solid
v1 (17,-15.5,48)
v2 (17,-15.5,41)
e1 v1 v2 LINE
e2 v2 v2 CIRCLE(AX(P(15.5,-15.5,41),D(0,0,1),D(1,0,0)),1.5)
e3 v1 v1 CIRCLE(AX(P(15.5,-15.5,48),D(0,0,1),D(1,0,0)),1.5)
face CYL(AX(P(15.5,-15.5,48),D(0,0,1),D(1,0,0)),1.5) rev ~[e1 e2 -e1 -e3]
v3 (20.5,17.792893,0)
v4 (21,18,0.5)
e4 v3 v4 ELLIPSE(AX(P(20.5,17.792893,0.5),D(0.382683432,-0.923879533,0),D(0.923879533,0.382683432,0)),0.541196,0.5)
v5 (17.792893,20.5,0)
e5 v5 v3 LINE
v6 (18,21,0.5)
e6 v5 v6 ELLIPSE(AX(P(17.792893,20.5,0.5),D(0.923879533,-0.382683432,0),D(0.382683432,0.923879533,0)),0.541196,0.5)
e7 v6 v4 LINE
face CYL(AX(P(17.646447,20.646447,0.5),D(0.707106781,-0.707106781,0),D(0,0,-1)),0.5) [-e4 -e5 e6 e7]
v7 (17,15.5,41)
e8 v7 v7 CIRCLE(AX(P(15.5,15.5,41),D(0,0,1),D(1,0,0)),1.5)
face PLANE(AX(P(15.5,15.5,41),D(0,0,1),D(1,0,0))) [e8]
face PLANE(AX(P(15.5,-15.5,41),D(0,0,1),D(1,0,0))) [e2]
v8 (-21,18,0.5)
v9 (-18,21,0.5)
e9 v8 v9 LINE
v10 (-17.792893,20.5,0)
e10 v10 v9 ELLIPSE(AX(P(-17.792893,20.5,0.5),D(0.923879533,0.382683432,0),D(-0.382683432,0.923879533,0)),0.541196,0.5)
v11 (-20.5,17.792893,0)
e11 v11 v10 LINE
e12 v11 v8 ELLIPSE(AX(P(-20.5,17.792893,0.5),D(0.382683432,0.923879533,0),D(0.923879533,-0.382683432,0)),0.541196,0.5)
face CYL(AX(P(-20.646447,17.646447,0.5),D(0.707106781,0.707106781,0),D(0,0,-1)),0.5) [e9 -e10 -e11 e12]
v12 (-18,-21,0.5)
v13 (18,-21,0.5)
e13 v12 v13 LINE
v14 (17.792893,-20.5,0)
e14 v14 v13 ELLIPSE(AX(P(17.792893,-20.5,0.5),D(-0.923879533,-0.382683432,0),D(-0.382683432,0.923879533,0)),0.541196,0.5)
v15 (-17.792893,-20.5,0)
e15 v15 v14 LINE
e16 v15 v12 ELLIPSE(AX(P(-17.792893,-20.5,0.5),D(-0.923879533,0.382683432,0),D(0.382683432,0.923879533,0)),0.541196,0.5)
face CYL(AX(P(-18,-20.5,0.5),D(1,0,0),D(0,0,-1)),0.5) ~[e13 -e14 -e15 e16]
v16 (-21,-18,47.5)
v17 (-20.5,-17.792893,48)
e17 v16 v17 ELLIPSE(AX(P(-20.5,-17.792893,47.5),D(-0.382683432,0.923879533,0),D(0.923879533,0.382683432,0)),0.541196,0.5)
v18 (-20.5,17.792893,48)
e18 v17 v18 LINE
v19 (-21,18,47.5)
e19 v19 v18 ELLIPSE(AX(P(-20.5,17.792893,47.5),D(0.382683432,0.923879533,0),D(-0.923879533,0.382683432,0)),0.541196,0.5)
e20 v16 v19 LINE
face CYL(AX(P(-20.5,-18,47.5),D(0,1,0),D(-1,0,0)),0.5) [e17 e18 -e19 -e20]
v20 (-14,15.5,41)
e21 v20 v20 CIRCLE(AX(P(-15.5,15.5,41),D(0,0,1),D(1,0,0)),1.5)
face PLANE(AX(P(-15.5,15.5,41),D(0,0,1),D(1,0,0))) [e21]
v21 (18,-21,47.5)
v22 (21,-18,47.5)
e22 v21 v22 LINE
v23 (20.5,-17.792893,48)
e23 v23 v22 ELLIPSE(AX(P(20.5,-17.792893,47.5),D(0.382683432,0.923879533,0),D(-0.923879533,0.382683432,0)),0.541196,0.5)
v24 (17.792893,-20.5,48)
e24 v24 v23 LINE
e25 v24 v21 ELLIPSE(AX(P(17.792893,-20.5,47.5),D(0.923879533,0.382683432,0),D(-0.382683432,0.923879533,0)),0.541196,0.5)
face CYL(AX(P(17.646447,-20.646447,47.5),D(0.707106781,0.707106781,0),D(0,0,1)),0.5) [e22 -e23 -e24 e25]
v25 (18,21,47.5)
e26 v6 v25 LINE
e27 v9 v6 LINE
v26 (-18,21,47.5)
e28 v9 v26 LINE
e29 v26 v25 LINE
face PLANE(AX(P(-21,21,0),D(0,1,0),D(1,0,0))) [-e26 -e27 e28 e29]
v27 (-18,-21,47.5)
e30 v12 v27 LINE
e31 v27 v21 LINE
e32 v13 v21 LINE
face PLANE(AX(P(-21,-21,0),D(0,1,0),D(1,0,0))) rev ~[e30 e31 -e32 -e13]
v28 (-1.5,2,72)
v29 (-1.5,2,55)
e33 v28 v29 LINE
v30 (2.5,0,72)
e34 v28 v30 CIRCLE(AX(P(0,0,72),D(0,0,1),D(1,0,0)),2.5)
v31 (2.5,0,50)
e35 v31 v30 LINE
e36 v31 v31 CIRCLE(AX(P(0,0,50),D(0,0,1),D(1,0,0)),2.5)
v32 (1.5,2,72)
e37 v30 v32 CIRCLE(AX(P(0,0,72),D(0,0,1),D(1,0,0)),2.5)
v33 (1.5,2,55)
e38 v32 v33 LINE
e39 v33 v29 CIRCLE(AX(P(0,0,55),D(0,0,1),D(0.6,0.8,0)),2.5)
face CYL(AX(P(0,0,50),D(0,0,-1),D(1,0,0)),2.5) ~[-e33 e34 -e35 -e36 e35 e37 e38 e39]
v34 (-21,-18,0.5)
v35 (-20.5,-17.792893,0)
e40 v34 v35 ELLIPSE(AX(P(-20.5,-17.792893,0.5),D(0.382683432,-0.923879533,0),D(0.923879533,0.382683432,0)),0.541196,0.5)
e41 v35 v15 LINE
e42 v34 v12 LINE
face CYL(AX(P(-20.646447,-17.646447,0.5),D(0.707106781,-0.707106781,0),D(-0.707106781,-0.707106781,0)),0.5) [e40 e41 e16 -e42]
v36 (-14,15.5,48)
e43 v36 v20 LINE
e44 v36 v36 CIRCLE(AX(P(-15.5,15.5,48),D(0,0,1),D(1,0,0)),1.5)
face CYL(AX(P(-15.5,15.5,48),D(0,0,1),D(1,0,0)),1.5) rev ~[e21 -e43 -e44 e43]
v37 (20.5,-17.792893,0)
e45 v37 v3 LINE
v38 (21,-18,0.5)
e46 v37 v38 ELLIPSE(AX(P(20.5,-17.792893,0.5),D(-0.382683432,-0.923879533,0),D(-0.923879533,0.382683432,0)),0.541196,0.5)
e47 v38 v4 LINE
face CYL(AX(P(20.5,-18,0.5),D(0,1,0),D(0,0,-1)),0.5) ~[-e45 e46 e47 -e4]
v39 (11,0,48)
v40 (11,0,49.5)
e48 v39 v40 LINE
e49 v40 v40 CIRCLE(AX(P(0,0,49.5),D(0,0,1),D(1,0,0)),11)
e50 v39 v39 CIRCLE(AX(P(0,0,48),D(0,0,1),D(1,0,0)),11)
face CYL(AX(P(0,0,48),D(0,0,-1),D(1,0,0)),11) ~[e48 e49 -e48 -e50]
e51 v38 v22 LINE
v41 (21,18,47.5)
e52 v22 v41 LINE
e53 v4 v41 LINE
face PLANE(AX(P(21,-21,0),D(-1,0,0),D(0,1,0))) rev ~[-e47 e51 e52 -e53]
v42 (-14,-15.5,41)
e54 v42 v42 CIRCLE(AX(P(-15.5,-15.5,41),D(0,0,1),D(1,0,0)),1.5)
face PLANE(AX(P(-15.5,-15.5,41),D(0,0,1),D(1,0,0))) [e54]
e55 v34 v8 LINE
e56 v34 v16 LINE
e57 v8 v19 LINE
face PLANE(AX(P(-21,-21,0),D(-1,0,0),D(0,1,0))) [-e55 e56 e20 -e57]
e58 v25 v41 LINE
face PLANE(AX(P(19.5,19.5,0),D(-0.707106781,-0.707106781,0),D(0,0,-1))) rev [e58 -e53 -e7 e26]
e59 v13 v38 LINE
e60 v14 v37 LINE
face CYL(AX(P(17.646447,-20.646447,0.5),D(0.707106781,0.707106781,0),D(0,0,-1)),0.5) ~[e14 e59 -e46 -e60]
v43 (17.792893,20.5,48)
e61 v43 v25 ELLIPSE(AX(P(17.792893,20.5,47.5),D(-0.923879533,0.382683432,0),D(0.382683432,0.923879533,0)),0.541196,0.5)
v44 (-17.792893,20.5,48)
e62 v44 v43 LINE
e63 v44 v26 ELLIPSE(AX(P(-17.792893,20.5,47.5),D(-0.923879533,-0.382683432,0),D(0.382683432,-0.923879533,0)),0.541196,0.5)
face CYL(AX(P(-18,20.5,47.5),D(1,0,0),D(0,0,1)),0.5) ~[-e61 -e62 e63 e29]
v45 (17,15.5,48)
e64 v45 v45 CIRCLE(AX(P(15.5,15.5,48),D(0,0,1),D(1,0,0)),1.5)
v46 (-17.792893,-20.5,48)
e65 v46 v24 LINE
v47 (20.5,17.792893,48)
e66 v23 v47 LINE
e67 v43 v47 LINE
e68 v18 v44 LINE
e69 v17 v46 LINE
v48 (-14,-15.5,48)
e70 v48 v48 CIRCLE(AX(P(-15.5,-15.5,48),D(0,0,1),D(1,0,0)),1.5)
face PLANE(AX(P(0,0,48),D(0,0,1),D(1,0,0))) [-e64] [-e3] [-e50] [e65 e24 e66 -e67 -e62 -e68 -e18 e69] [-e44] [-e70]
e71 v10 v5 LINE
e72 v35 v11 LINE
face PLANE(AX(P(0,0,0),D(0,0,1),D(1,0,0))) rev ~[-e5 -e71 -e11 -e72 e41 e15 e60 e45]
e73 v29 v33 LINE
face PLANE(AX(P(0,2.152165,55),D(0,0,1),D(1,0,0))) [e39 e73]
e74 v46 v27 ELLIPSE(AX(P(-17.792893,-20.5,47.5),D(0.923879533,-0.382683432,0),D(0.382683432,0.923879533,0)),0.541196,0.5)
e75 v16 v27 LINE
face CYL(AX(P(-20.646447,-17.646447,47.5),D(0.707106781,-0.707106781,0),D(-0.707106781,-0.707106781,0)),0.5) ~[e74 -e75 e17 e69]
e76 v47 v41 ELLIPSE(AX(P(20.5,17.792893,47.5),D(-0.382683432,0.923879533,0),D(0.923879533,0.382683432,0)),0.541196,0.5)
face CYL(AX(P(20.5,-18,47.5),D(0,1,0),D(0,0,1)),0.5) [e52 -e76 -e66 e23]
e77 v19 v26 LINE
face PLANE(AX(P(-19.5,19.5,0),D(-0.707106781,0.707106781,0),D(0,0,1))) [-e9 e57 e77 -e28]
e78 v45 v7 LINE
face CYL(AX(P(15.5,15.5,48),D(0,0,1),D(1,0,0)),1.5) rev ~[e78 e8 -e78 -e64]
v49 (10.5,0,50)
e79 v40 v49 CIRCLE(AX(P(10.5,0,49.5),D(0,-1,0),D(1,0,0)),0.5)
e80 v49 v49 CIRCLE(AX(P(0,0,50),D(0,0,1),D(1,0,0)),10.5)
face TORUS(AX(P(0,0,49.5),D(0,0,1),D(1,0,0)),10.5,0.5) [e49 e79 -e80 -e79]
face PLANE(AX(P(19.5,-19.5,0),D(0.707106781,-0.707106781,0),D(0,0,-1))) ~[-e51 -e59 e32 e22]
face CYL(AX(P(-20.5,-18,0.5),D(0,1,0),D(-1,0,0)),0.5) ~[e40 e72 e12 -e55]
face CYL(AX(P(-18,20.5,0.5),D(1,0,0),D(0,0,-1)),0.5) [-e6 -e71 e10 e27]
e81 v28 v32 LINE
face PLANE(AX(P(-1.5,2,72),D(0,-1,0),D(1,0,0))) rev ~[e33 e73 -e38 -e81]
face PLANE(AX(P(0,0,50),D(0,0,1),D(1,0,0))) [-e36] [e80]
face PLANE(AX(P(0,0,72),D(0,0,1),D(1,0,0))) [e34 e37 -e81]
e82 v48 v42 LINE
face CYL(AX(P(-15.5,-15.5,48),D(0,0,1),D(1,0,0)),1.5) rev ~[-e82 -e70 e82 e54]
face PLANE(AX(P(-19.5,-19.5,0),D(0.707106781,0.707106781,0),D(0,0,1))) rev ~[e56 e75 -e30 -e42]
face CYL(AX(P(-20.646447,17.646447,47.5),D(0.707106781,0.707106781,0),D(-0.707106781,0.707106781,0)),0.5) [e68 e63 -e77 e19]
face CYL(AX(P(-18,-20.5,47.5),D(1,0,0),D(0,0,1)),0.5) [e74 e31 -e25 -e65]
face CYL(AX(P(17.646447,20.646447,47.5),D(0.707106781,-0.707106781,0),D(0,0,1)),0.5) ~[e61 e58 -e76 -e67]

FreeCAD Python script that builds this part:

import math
import FreeCAD as App
import Part
import Sketcher


def edges_at(feature, points):
    """Names of the edges that pass closest to the given points."""
    edges = feature.Shape.Edges
    near = lambda p: min(range(len(edges)), key=lambda i: edges[i].distToShape(Part.Vertex(*p))[0])
    return sorted({f"Edge{near(p) + 1}" for p in points})

doc = App.newDocument("Part")
body = doc.addObject("PartDesign::Body", "Body")

sketch1 = body.newObject("Sketcher::SketchObject", "Sketch")
sketch1.AttachmentSupport = (doc.getObject("XY_Plane"), [""])
sketch1.MapMode = "FlatFace"
sketch1.addGeometry([
    Part.LineSegment(App.Vector(-21, 21, 0), App.Vector(-21, -21, 0)),
    Part.LineSegment(App.Vector(-21, -21, 0), App.Vector(21, -21, 0)),
    Part.LineSegment(App.Vector(21, -21, 0), App.Vector(21, 21, 0)),
    Part.LineSegment(App.Vector(21, 21, 0), App.Vector(-21, 21, 0)),
], False)
sketch1.addConstraint([
    Sketcher.Constraint("Coincident", 0, 2, 1, 1),
    Sketcher.Constraint("Coincident", 1, 2, 2, 1),
    Sketcher.Constraint("Coincident", 2, 2, 3, 1),
    Sketcher.Constraint("Coincident", 3, 2, 0, 1),
    Sketcher.Constraint("Vertical", 0),
    Sketcher.Constraint("Horizontal", 1),
    Sketcher.Constraint("Vertical", 2),
    Sketcher.Constraint("Horizontal", 3),
    Sketcher.Constraint("Symmetric", 0, 2, 2, 2, -1, 1),
    Sketcher.Constraint("Equal", 3, 0),
    Sketcher.Constraint("DistanceX", 1, 1, 1, 2, 42.0),
])
pad1 = body.newObject("PartDesign::Pad", "Pad")
pad1.Profile = sketch1
pad1.Length = 48

sketch2 = body.newObject("Sketcher::SketchObject", "Sketch001")
sketch2.AttachmentSupport = (doc.getObject("XY_Plane"), [""])
sketch2.MapMode = "FlatFace"
sketch2.AttachmentOffset = App.Placement(App.Vector(0, 0, 48), App.Rotation())
sketch2.addGeometry([
    Part.Circle(App.Vector(-15.5, -15.5, 0), App.Vector(0, 0, 1), 1.5),
    Part.Circle(App.Vector(-15.5, 15.5, 0), App.Vector(0, 0, 1), 1.5),
    Part.Circle(App.Vector(15.5, 15.5, 0), App.Vector(0, 0, 1), 1.5),
    Part.Circle(App.Vector(15.5, -15.5, 0), App.Vector(0, 0, 1), 1.5),
], False)
sketch2.addConstraint([
    Sketcher.Constraint("Equal", 0, 1),
    Sketcher.Constraint("Equal", 1, 2),
    Sketcher.Constraint("Equal", 2, 3),
    Sketcher.Constraint("Symmetric", 0, 3, 2, 3, -1, 1),
    Sketcher.Constraint("Symmetric", 1, 3, 3, 3, -1, 1),
    Sketcher.Constraint("Symmetric", 1, 3, 2, 3, -2),
    Sketcher.Constraint("Diameter", 0, 3.0),
    Sketcher.Constraint("DistanceY", 0, 3, 1, 3, 31.0),
    Sketcher.Constraint("DistanceX", 1, 3, 2, 3, 31.0),
])
pocket1 = body.newObject("PartDesign::Pocket", "Pocket")
pocket1.Profile = sketch2
pocket1.Length = 7

sketch3 = body.newObject("Sketcher::SketchObject", "Sketch002")
sketch3.AttachmentSupport = (doc.getObject("XY_Plane"), [""])
sketch3.MapMode = "FlatFace"
sketch3.AttachmentOffset = App.Placement(App.Vector(0, 0, 48), App.Rotation())
sketch3.addGeometry(Part.Circle(App.Vector(0, 0, 0), App.Vector(0, 0, 1), 11), False)
sketch3.addConstraint([
    Sketcher.Constraint("Coincident", 0, 3, -1, 1),
    Sketcher.Constraint("Diameter", 0, 22.0),
])
pad2 = body.newObject("PartDesign::Pad", "Pad001")
pad2.Profile = sketch3
pad2.Length = 2

sketch4 = body.newObject("Sketcher::SketchObject", "Sketch003")
sketch4.AttachmentSupport = (doc.getObject("XY_Plane"), [""])
sketch4.MapMode = "FlatFace"
sketch4.AttachmentOffset = App.Placement(App.Vector(0, 0, 50), App.Rotation())
sketch4.addGeometry(Part.Circle(App.Vector(0, 0, 0), App.Vector(0, 0, 1), 2.5), False)
sketch4.addConstraint([
    Sketcher.Constraint("Coincident", 0, 3, -1, 1),
    Sketcher.Constraint("Diameter", 0, 5.0),
])
pad3 = body.newObject("PartDesign::Pad", "Pad002")
pad3.Profile = sketch4
pad3.Length = 22

sketch5 = body.newObject("Sketcher::SketchObject", "Sketch004")
sketch5.AttachmentSupport = (doc.getObject("XY_Plane"), [""])
sketch5.MapMode = "FlatFace"
sketch5.AttachmentOffset = App.Placement(App.Vector(0, 0, 72), App.Rotation())
sketch5.addGeometry([
    Part.ArcOfCircle(Part.Circle(App.Vector(0, 0, 0), App.Vector(0, 0, 1), 2.5), math.radians(53), math.radians(127)),
    Part.LineSegment(App.Vector(-1.5, 2, 0), App.Vector(1.5, 2, 0)),
], False)
sketch5.addConstraint([
    Sketcher.Constraint("Coincident", 0, 1, 1, 2),
    Sketcher.Constraint("Coincident", 1, 1, 0, 2),
    Sketcher.Constraint("Horizontal", 1),
    Sketcher.Constraint("Coincident", 0, 3, -1, 1),
    Sketcher.Constraint("Radius", 0, 2.5),
    Sketcher.Constraint("DistanceX", 1, 1, 1, 2, 3.0),
])
pocket2 = body.newObject("PartDesign::Pocket", "Pocket001")
pocket2.Profile = sketch5
pocket2.Length = 17
doc.recompute()

chamfer = body.newObject("PartDesign::Chamfer", "Chamfer")
chamfer.Base = (pocket2, edges_at(pocket2, [
    (21, -21, 24),
    (21, 21, 24),
    (-21, -21, 24),
    (-21, 21, 24),
]))
chamfer.Size = 3
doc.recompute()

fillet = body.newObject("PartDesign::Fillet", "Fillet")
fillet.Base = (chamfer, edges_at(chamfer, [
    (0, 21, 48),
    (19.5, 19.5, 48),
    (21, 0, 48),
    (19.5, -19.5, 48),
    (0, -21, 48),
    (-19.5, -19.5, 48),
    (-21, 0, 48),
    (-19.5, 19.5, 48),
]))
fillet.Radius = 0.5
doc.recompute()

fillet2 = body.newObject("PartDesign::Fillet", "Fillet001")
fillet2.Base = (fillet, edges_at(fillet, [
    (-19.5, 19.5, 0),
    (0, 21, 0),
    (19.5, 19.5, 0),
    (21, 0, 0),
    (19.5, -19.5, 0),
    (0, -21, 0),
    (-19.5, -19.5, 0),
    (-21, 0, 0),
]))
fillet2.Radius = 0.5
doc.recompute()

fillet3 = body.newObject("PartDesign::Fillet", "Fillet002")
fillet3.Base = (fillet2, edges_at(fillet2, [(-11, 0, 50)]))
fillet3.Radius = 0.5

doc.recompute()
